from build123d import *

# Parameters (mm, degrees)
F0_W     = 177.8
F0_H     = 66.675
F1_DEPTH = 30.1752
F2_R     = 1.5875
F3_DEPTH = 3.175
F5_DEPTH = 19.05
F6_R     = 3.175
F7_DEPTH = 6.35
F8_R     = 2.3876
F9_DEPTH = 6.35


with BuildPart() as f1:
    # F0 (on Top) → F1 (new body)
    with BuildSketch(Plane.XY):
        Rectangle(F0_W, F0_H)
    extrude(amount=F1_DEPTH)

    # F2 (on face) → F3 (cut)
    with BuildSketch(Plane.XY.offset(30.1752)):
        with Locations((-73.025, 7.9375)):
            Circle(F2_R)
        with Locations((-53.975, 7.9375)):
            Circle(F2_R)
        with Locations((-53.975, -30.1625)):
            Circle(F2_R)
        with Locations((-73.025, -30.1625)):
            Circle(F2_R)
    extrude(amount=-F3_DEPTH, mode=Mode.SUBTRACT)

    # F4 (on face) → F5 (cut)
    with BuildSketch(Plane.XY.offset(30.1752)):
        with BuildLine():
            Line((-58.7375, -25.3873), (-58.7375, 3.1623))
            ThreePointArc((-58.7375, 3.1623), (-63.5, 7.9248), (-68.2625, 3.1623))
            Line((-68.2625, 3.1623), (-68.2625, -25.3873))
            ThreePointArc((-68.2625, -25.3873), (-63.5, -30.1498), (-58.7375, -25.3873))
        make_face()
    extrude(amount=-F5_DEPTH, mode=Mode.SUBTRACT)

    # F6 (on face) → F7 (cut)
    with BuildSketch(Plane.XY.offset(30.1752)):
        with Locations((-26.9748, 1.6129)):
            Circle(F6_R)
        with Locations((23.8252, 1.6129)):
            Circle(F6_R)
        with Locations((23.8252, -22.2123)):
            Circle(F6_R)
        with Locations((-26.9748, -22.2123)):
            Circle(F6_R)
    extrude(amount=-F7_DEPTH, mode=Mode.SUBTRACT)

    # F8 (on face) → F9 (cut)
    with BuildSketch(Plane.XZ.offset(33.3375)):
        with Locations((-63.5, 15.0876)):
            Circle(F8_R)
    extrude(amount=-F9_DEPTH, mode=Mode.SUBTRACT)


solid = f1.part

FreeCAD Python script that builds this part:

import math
import FreeCAD as App
import Part
import Sketcher

V = App.Vector
Q = App.Units.Quantity

doc = App.newDocument("Part")
body = doc.addObject("PartDesign::Body", "Body")

sketch1 = body.newObject("Sketcher::SketchObject", "Sketch")
sketch1.AttachmentSupport = (doc.getObject("XY_Plane"), [""])
sketch1.MapMode = "FlatFace"
sketch1.addGeometry([
    Part.LineSegment(V(-89, 33, 0), V(-89, -33, 0)),
    Part.LineSegment(V(-89, -33, 0), V(89, -33, 0)),
    Part.LineSegment(V(89, -33, 0), V(89, 33, 0)),
    Part.LineSegment(V(89, 33, 0), V(-89, 33, 0)),
], False)
sketch1.addConstraint([
    Sketcher.Constraint("Coincident", 0, 2, 1, 1),
    Sketcher.Constraint("Coincident", 1, 2, 2, 1),
    Sketcher.Constraint("Coincident", 2, 2, 3, 1),
    Sketcher.Constraint("Coincident", 3, 2, 0, 1),
    Sketcher.Constraint("Vertical", 0),
    Sketcher.Constraint("Horizontal", 1),
    Sketcher.Constraint("Vertical", 2),
    Sketcher.Constraint("Horizontal", 3),
    Sketcher.Constraint("Symmetric", 0, 2, 2, 2, -1, 1),
    Sketcher.Constraint("DistanceX", 1, 1, 1, 2, Q("7 in")),
    Sketcher.Constraint("DistanceY", 0, 2, 0, 1, Q("2.625 in")),
])
pad1 = body.newObject("PartDesign::Pad", "Pad")
pad1.Profile = sketch1
pad1.Length = Q("1.188 in")

sketch2 = body.newObject("Sketcher::SketchObject", "Sketch001")
sketch2.AttachmentSupport = (doc.getObject("XY_Plane"), [""])
sketch2.MapMode = "FlatFace"
sketch2.AttachmentOffset = App.Placement(V(0, 0, 1.188 * 25.4), App.Rotation())
sketch2.addGeometry([
    Part.Circle(V(-73, 7.9, 0), V(0, 0, 1), 1.6),
    Part.Circle(V(-54, 7.9, 0), V(0, 0, 1), 1.6),
    Part.Circle(V(-54, -30.2, 0), V(0, 0, 1), 1.6),
    Part.Circle(V(-73, -30.2, 0), V(0, 0, 1), 1.6),
], False)
sketch2.addConstraint([
    Sketcher.Constraint("Equal", 0, 1),
    Sketcher.Constraint("Equal", 1, 2),
    Sketcher.Constraint("Equal", 2, 3),
    Sketcher.Constraint("Horizontal", 0, 3, 1, 3),
    Sketcher.Constraint("Horizontal", 2, 3, 3, 3),
    Sketcher.Constraint("Vertical", 1, 3, 2, 3),
    Sketcher.Constraint("Vertical", 0, 3, 3, 3),
    Sketcher.Constraint("Diameter", 0, Q("0.125 in")),
    Sketcher.Constraint("DistanceY", 2, 3, 1, 3, Q("1.5 in")),
    Sketcher.Constraint("DistanceX", 0, 3, 1, 3, Q("0.75 in")),
    Sketcher.Constraint("DistanceX", 0, 3, -1, 1, Q("2.875 in")),
    Sketcher.Constraint("DistanceY", -1, 1, 0, 3, Q("0.3125 in")),
])
pocket1 = body.newObject("PartDesign::Pocket", "Pocket")
pocket1.Profile = sketch2
pocket1.Length = Q("0.125 in")

sketch3 = body.newObject("Sketcher::SketchObject", "Sketch002")
sketch3.AttachmentSupport = (doc.getObject("XY_Plane"), [""])
sketch3.MapMode = "FlatFace"
sketch3.AttachmentOffset = App.Placement(V(0, 0, 1.188 * 25.4), App.Rotation())
sketch3.addGeometry([
    Part.LineSegment(V(-58.7, -25.4, 0), V(-58.7, 3.2, 0)),
    Part.ArcOfCircle(Part.Circle(V(-63.5, 3.2, 0), V(0, 0, 1), 4.8), math.radians(0), math.radians(180)),
    Part.LineSegment(V(-68.3, 3.2, 0), V(-68.3, -25.4, 0)),
    Part.ArcOfCircle(Part.Circle(V(-63.5, -25.4, 0), V(0, 0, 1), 4.8), math.radians(180), math.radians(360)),
], False)
sketch3.addConstraint([
    Sketcher.Constraint("Tangent", 0, 2, 1, 1),
    Sketcher.Constraint("Tangent", 1, 2, 2, 1),
    Sketcher.Constraint("Tangent", 2, 2, 3, 1),
    Sketcher.Constraint("Tangent", 3, 2, 0, 1),
    Sketcher.Constraint("Vertical", 0),
    Sketcher.Constraint("Vertical", 2),
    Sketcher.Constraint("Radius", 1, Q("0.1875 in")),
    Sketcher.Constraint("DistanceX", 1, 3, -1, 1, Q("2.5 in")),
    Sketcher.Constraint("DistanceY", 0, 1, 0, 2, Q("1.124 in")),
    Sketcher.Constraint("DistanceY", -1, 1, 1, 3, Q("0.1245 in")),
])
pocket2 = body.newObject("PartDesign::Pocket", "Pocket001")
pocket2.Profile = sketch3
pocket2.Length = Q("0.75 in")

sketch4 = body.newObject("Sketcher::SketchObject", "Sketch003")
sketch4.AttachmentSupport = (doc.getObject("XY_Plane"), [""])
sketch4.MapMode = "FlatFace"
sketch4.AttachmentOffset = App.Placement(V(0, 0, 1.188 * 25.4), App.Rotation())
sketch4.addGeometry([
    Part.Circle(V(-27, 1.6, 0), V(0, 0, 1), 3.2),
    Part.Circle(V(23.8, 1.6, 0), V(0, 0, 1), 3.2),
    Part.Circle(V(23.8, -22.2, 0), V(0, 0, 1), 3.2),
    Part.Circle(V(-27, -22.2, 0), V(0, 0, 1), 3.2),
], False)
sketch4.addConstraint([
    Sketcher.Constraint("Equal", 0, 1),
    Sketcher.Constraint("Equal", 1, 2),
    Sketcher.Constraint("Equal", 2, 3),
    Sketcher.Constraint("Horizontal", 0, 3, 1, 3),
    Sketcher.Constraint("Horizontal", 2, 3, 3, 3),
    Sketcher.Constraint("Vertical", 1, 3, 2, 3),
    Sketcher.Constraint("Vertical", 0, 3, 3, 3),
    Sketcher.Constraint("Diameter", 0, Q("0.25 in")),
    Sketcher.Constraint("DistanceX", 0, 3, 1, 3, Q("2 in")),
    Sketcher.Constraint("DistanceX", 0, 3, -1, 1, Q("1.062 in")),
    Sketcher.Constraint("DistanceY", 2, 3, 1, 3, Q("0.938 in")),
    Sketcher.Constraint("DistanceY", -1, 1, 0, 3, Q("0.0635 in")),
])
pocket3 = body.newObject("PartDesign::Pocket", "Pocket002")
pocket3.Profile = sketch4
pocket3.Length = Q("0.25 in")

sketch5 = body.newObject("Sketcher::SketchObject", "Sketch004")
sketch5.AttachmentSupport = (doc.getObject("XZ_Plane"), [""])
sketch5.MapMode = "FlatFace"
sketch5.AttachmentOffset = App.Placement(V(0, 0, 1.3125 * 25.4), App.Rotation())
sketch5.addGeometry(Part.Circle(V(-63.5, 15.1, 0), V(0, 0, 1), 2.4), False)
sketch5.addConstraint([
    Sketcher.Constraint("Diameter", 0, Q("0.188 in")),
    Sketcher.Constraint("DistanceX", 0, 3, -1, 1, Q("2.5 in")),
    Sketcher.Constraint("DistanceY", -1, 1, 0, 3, Q("0.594 in")),
])
pocket4 = body.newObject("PartDesign::Pocket", "Pocket003")
pocket4.Profile = sketch5
pocket4.Length = Q("0.25 in")

doc.recompute()
